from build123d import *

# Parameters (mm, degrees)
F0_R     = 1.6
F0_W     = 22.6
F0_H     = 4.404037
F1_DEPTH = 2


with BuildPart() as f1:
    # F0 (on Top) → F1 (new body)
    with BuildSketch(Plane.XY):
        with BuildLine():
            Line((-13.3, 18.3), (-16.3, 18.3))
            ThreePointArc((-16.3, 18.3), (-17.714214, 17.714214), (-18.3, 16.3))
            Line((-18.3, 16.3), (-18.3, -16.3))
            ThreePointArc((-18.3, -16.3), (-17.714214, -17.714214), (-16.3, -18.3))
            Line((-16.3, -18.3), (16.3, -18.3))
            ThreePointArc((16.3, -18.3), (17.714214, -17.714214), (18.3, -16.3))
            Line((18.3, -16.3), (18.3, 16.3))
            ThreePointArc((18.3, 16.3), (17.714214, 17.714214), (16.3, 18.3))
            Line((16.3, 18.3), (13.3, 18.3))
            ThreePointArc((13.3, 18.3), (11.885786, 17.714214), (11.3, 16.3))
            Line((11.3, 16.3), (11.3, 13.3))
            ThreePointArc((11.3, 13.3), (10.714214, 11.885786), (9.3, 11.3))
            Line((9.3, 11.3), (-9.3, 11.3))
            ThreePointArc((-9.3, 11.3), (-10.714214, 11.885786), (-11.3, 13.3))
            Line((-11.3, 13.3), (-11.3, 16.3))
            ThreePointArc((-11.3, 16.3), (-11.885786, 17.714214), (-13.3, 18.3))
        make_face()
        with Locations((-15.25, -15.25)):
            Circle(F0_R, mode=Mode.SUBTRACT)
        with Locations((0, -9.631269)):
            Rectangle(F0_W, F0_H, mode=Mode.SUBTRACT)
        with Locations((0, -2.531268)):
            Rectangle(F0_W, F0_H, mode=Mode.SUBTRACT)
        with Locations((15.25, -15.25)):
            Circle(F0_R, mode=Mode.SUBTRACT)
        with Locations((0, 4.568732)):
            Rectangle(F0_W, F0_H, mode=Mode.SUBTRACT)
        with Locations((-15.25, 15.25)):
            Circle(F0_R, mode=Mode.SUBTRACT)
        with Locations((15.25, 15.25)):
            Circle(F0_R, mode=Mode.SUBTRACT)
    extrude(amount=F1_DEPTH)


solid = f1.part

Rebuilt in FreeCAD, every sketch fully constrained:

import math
import FreeCAD as App
import Part
import Sketcher

V = App.Vector
Q = App.Units.Quantity


def add_polygon(sketch, points):
    """Adds a closed chain of lines whose ends are joined by coincident constraints."""
    first, n = sketch.GeometryCount, len(points)
    for a, b in zip(points, points[1:] + points[:1]):
        sketch.addGeometry(Part.LineSegment(App.Vector(*a, 0), App.Vector(*b, 0)), False)
    for i in range(n):
        sketch.addConstraint(Sketcher.Constraint("Coincident", first + i, 2, first + (i + 1) % n, 1))

doc = App.newDocument("Part")
body = doc.addObject("PartDesign::Body", "Body")

# Sketch on XY plane
sketch1 = body.newObject("Sketcher::SketchObject", "Sketch")
sketch1.AttachmentSupport = (doc.getObject("XY_Plane"), [""])
sketch1.MapMode = "FlatFace"
sketch1.addGeometry(Part.LineSegment(V(-13.3, 18.3, 0), V(-16.3, 18.3, 0)), False)  # 0
sketch1.addGeometry(Part.ArcOfCircle(Part.Circle(V(-16.300001, 16.300001, 0), V(0, 0, 1), 1.999999), math.radians(89.999957), math.radians(180.000043)), False)  # 1
sketch1.addGeometry(Part.LineSegment(V(-18.3, 16.3, 0), V(-18.3, -16.3, 0)), False)  # 2
sketch1.addGeometry(Part.ArcOfCircle(Part.Circle(V(-16.300001, -16.300001, 0), V(0, 0, 1), 1.999999), math.radians(179.999957), math.radians(270.000043)), False)  # 3
sketch1.addGeometry(Part.LineSegment(V(-16.3, -18.3, 0), V(16.3, -18.3, 0)), False)  # 4
sketch1.addGeometry(Part.ArcOfCircle(Part.Circle(V(16.300001, -16.300001, 0), V(0, 0, 1), 1.999999), math.radians(-90.000043), math.radians(0.000043)), False)  # 5
sketch1.addGeometry(Part.LineSegment(V(18.3, -16.3, 0), V(18.3, 16.3, 0)), False)  # 6
sketch1.addGeometry(Part.ArcOfCircle(Part.Circle(V(16.300001, 16.300001, 0), V(0, 0, 1), 1.999999), math.radians(-0.000043), math.radians(90.000043)), False)  # 7
sketch1.addGeometry(Part.LineSegment(V(16.3, 18.3, 0), V(13.3, 18.3, 0)), False)  # 8
sketch1.addGeometry(Part.ArcOfCircle(Part.Circle(V(13.299999, 16.300001, 0), V(0, 0, 1), 1.999999), math.radians(89.999957), math.radians(180.000043)), False)  # 9
sketch1.addGeometry(Part.LineSegment(V(11.3, 16.3, 0), V(11.3, 13.3, 0)), False)  # 10
sketch1.addGeometry(Part.ArcOfCircle(Part.Circle(V(9.300001, 13.299999, 0), V(0, 0, 1), 1.999999), math.radians(-90.000043), math.radians(0.000043)), False)  # 11
sketch1.addGeometry(Part.LineSegment(V(9.3, 11.3, 0), V(-9.3, 11.3, 0)), False)  # 12
sketch1.addGeometry(Part.ArcOfCircle(Part.Circle(V(-9.300001, 13.299999, 0), V(0, 0, 1), 1.999999), math.radians(179.999957), math.radians(270.000043)), False)  # 13
sketch1.addGeometry(Part.LineSegment(V(-11.3, 13.3, 0), V(-11.3, 16.3, 0)), False)  # 14
sketch1.addGeometry(Part.ArcOfCircle(Part.Circle(V(-13.299999, 16.300001, 0), V(0, 0, 1), 1.999999), math.radians(-0.000043), math.radians(90.000043)), False)  # 15
sketch1.addGeometry(Part.Circle(V(-15.25, -15.25, 0), V(0, 0, 1), 1.6), False)  # 16
add_polygon(sketch1, [(11.3, -11.833288), (-11.3, -11.833288), (-11.3, -7.429251), (11.3, -7.429251)])  # lines 17-20
sketch1.addGeometry(Part.Circle(V(15.25, -15.25, 0), V(0, 0, 1), 1.6), False)  # 21
add_polygon(sketch1, [(11.3, -4.733287), (-11.3, -4.733287), (-11.3, -0.329249), (11.3, -0.329249)])  # lines 22-25
sketch1.addGeometry(Part.Circle(V(-15.25, 15.25, 0), V(0, 0, 1), 1.6), False)  # 26
add_polygon(sketch1, [(11.3, 2.366713), (-11.3, 2.366713), (-11.3, 6.770751), (11.3, 6.770751)])  # lines 27-30
sketch1.addGeometry(Part.Circle(V(15.25, 15.25, 0), V(0, 0, 1), 1.6), False)  # 31
sketch1.addConstraint(Sketcher.Constraint("Tangent", 0, 2, 1, 1))
sketch1.addConstraint(Sketcher.Constraint("Tangent", 1, 2, 2, 1))
sketch1.addConstraint(Sketcher.Constraint("Tangent", 2, 2, 3, 1))
sketch1.addConstraint(Sketcher.Constraint("Tangent", 3, 2, 4, 1))
sketch1.addConstraint(Sketcher.Constraint("Tangent", 4, 2, 5, 1))
sketch1.addConstraint(Sketcher.Constraint("Tangent", 5, 2, 6, 1))
sketch1.addConstraint(Sketcher.Constraint("Tangent", 6, 2, 7, 1))
sketch1.addConstraint(Sketcher.Constraint("Tangent", 7, 2, 8, 1))
sketch1.addConstraint(Sketcher.Constraint("Tangent", 8, 2, 9, 1))
sketch1.addConstraint(Sketcher.Constraint("Tangent", 9, 2, 10, 1))
sketch1.addConstraint(Sketcher.Constraint("Tangent", 10, 2, 11, 2))
sketch1.addConstraint(Sketcher.Constraint("Tangent", 11, 1, 12, 1))
sketch1.addConstraint(Sketcher.Constraint("Tangent", 12, 2, 13, 2))
sketch1.addConstraint(Sketcher.Constraint("Tangent", 13, 1, 14, 1))
sketch1.addConstraint(Sketcher.Constraint("Tangent", 14, 2, 15, 1))
sketch1.addConstraint(Sketcher.Constraint("Tangent", 15, 2, 0, 1))
sketch1.addConstraint(Sketcher.Constraint("Horizontal", 0))
sketch1.addConstraint(Sketcher.Constraint("Vertical", 2))
sketch1.addConstraint(Sketcher.Constraint("Horizontal", 4))
sketch1.addConstraint(Sketcher.Constraint("Vertical", 6))
sketch1.addConstraint(Sketcher.Constraint("Horizontal", 8))
sketch1.addConstraint(Sketcher.Constraint("Vertical", 10))
sketch1.addConstraint(Sketcher.Constraint("Horizontal", 12))
sketch1.addConstraint(Sketcher.Constraint("Vertical", 14))
sketch1.addConstraint(Sketcher.Constraint("Horizontal", 17))
sketch1.addConstraint(Sketcher.Constraint("Vertical", 18))
sketch1.addConstraint(Sketcher.Constraint("Horizontal", 19))
sketch1.addConstraint(Sketcher.Constraint("Vertical", 20))
sketch1.addConstraint(Sketcher.Constraint("Horizontal", 22))
sketch1.addConstraint(Sketcher.Constraint("Vertical", 23))
sketch1.addConstraint(Sketcher.Constraint("Horizontal", 24))
sketch1.addConstraint(Sketcher.Constraint("Vertical", 25))
sketch1.addConstraint(Sketcher.Constraint("Horizontal", 27))
sketch1.addConstraint(Sketcher.Constraint("Vertical", 28))
sketch1.addConstraint(Sketcher.Constraint("Horizontal", 29))
sketch1.addConstraint(Sketcher.Constraint("Vertical", 30))
sketch1.addConstraint(Sketcher.Constraint("Equal", 1, 3))
sketch1.addConstraint(Sketcher.Constraint("Equal", 3, 5))
sketch1.addConstraint(Sketcher.Constraint("Equal", 5, 7))
sketch1.addConstraint(Sketcher.Constraint("Equal", 7, 9))
sketch1.addConstraint(Sketcher.Constraint("Equal", 9, 11))
sketch1.addConstraint(Sketcher.Constraint("Equal", 11, 13))
sketch1.addConstraint(Sketcher.Constraint("Equal", 13, 15))
sketch1.addConstraint(Sketcher.Constraint("Equal", 16, 21))
sketch1.addConstraint(Sketcher.Constraint("Equal", 21, 26))
sketch1.addConstraint(Sketcher.Constraint("Equal", 26, 31))
sketch1.addConstraint(Sketcher.Constraint("Symmetric", 1, 3, 5, 3, -1, 1))
sketch1.addConstraint(Sketcher.Constraint("Symmetric", 21, 3, 26, 3, -1, 1))
sketch1.addConstraint(Sketcher.Constraint("Symmetric", 16, 3, 31, 3, -1, 1))
sketch1.addConstraint(Sketcher.Constraint("Symmetric", 9, 3, 15, 3, -2))
sketch1.addConstraint(Sketcher.Constraint("Symmetric", 16, 3, 21, 3, -2))
sketch1.addConstraint(Sketcher.Constraint("Vertical", 14, 2, 17, 2))
sketch1.addConstraint(Sketcher.Constraint("Vertical", 10, 2, 19, 2))
sketch1.addConstraint(Sketcher.Constraint("Vertical", 18, 2, 22, 2))
sketch1.addConstraint(Sketcher.Constraint("Vertical", 20, 2, 24, 2))
sketch1.addConstraint(Sketcher.Constraint("Vertical", 23, 2, 27, 2))
sketch1.addConstraint(Sketcher.Constraint("Vertical", 25, 2, 29, 2))
sketch1.addConstraint(Sketcher.Constraint("Equal", 4, 2))
sketch1.addConstraint(Sketcher.Constraint("Equal", 8, 10))
sketch1.addConstraint(Sketcher.Constraint("Equal", 20, 23))
sketch1.addConstraint(Sketcher.Constraint("Equal", 25, 28))
sketch1.addConstraint(Sketcher.Constraint("Radius", 1, Q("1.999999 mm")))
sketch1.addConstraint(Sketcher.Constraint("Diameter", 16, Q("3.2 mm")))
sketch1.addConstraint(Sketcher.Constraint("DistanceX", 0, 2, 0, 1, Q("3 mm")))
sketch1.addConstraint(Sketcher.Constraint("DistanceX", 4, 1, 4, 2, Q("32.6 mm")))
sketch1.addConstraint(Sketcher.Constraint("DistanceX", 16, 3, 21, 3, Q("30.5 mm")))
sketch1.addConstraint(Sketcher.Constraint("DistanceY", 17, 2, 22, 2, Q("7.100001 mm")))
sketch1.addConstraint(Sketcher.Constraint("DistanceY", 22, 2, 27, 2, Q("7.1 mm")))
sketch1.addConstraint(Sketcher.Constraint("DistanceY", 16, 3, -1, 1, Q("15.25 mm")))
sketch1.addConstraint(Sketcher.Constraint("DistanceY", 18, 1, 18, 2, Q("4.404037 mm")))
sketch1.addConstraint(Sketcher.Constraint("DistanceY", 18, 2, -1, 1, Q("7.429251 mm")))
pad1 = body.newObject("PartDesign::Pad", "Pad")
pad1.Profile = sketch1
pad1.Length = 2

doc.recompute()
